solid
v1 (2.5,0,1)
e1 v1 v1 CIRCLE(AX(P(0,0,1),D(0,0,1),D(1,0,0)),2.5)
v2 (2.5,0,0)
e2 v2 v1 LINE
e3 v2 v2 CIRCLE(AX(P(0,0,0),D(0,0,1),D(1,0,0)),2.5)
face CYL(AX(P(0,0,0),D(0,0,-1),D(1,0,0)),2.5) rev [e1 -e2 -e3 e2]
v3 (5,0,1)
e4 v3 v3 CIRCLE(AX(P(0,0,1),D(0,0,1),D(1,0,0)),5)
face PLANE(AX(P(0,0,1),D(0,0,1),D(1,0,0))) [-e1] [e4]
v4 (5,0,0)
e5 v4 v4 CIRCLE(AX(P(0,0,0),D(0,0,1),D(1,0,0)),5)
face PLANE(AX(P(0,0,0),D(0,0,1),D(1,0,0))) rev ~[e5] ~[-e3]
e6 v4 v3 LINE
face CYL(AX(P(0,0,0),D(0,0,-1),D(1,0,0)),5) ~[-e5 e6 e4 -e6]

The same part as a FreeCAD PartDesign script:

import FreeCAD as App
import Part
import Sketcher

V = App.Vector
Q = App.Units.Quantity

doc = App.newDocument("Part")
params = doc.addObject("Spreadsheet::Sheet", "Params")
for row, (alias, value) in enumerate([
    ("sketch1_diameter", "10 mm"),
    ("sketch1_diameter2", "5 mm"),
    ("pad1_length", "1 mm"),
], start=1):
    params.set(f"A{row}", alias)
    params.set(f"B{row}", "=" + value)
    params.setAlias(f"B{row}", alias)

body = doc.addObject("PartDesign::Body", "Body")

# Sketch on XY plane
sketch1 = doc.addObject("Sketcher::SketchObject", "Sketch")
body.addObject(sketch1)
sketch1.AttachmentSupport = (doc.XY_Plane, [""])
sketch1.MapMode = "FlatFace"
sketch1.addGeometry([
    Part.Circle(V(0, 0, 0), V(0, 0, 1), 5),
    Part.Circle(V(0, 0, 0), V(0, 0, 1), 2.5),
], False)
sketch1.addConstraint([
    Sketcher.Constraint("Coincident", 0, 3, -1, 1),
    Sketcher.Constraint("Coincident", 1, 3, -1, 1),
    Sketcher.Constraint("Diameter", 0, Q("10 mm")),
    Sketcher.Constraint("Diameter", 1, Q("5 mm")),
])
sketch1.setExpression("Constraints[2]", "Params.sketch1_diameter")
sketch1.setExpression("Constraints[3]", "Params.sketch1_diameter2")
pad1 = doc.addObject("PartDesign::Pad", "Pad")
body.addObject(pad1)
pad1.Profile = sketch1
pad1.setExpression("Length", "Params.pad1_length")

doc.recompute()
